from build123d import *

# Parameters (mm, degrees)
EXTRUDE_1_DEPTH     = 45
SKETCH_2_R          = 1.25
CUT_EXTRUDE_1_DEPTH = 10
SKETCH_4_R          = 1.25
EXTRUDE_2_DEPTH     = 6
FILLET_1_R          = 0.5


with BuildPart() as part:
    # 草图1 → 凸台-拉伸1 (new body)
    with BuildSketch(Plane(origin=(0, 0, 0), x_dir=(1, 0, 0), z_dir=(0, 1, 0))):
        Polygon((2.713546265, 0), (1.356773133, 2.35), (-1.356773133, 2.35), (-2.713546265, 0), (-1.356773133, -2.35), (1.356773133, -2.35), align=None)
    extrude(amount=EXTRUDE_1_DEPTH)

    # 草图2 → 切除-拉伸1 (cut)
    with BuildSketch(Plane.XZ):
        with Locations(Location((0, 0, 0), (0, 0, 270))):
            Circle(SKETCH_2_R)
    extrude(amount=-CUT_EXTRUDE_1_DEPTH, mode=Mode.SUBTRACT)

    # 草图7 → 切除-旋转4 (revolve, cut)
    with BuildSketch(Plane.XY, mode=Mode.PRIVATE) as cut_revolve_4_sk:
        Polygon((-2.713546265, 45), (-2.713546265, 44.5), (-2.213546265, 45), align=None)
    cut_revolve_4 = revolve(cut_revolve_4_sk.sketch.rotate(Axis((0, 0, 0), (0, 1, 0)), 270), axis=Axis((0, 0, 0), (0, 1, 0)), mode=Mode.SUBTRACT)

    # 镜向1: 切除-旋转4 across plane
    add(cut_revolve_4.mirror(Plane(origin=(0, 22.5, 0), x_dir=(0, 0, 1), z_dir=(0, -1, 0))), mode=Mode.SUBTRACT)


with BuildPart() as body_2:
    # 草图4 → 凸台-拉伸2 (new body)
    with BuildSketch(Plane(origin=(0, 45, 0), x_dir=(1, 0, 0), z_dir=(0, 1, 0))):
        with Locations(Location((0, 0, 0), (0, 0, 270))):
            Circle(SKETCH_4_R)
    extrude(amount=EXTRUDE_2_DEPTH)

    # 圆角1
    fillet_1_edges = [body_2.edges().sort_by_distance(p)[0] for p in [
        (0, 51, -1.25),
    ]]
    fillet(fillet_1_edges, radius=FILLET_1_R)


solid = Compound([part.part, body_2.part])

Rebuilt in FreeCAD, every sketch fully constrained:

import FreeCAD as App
import Part
import Sketcher
from FreeCAD import Vector
Q = App.Units.Quantity


def edges_at(feature, points):
    """Names of the edges that pass closest to the given points."""
    edges = feature.Shape.Edges
    near = lambda p: min(range(len(edges)), key=lambda i: edges[i].distToShape(Part.Vertex(*p))[0])
    return sorted({f"Edge{near(p) + 1}" for p in points})


def add_polygon(sketch, points):
    """Adds a closed chain of lines whose ends are joined by coincident constraints."""
    first, n = sketch.GeometryCount, len(points)
    for a, b in zip(points, points[1:] + points[:1]):
        sketch.addGeometry(Part.LineSegment(App.Vector(*a, 0), App.Vector(*b, 0)), False)
    for i in range(n):
        sketch.addConstraint(Sketcher.Constraint("Coincident", first + i, 2, first + (i + 1) % n, 1))

doc = App.newDocument("Part")
body = doc.addObject("PartDesign::Body", "Body")

sketch1 = doc.addObject("Sketcher::SketchObject", "Sketch")
body.addObject(sketch1)
sketch1.AttachmentSupport = (doc.XZ_Plane, [""])
sketch1.MapMode = "FlatFace"
add_polygon(sketch1, [(2.713546, 0), (1.356773, -2.35), (-1.356773, -2.35), (-2.713546, 0), (-1.356773, 2.35), (1.356773, 2.35)])
sketch1.addConstraint([
    Sketcher.Constraint("Horizontal", 1),
    Sketcher.Constraint("Horizontal", 4),
    Sketcher.Constraint("Symmetric", 0, 2, 3, 2, -1, 1),
    Sketcher.Constraint("Symmetric", 2, 2, 5, 2, -1, 1),
    Sketcher.Constraint("PointOnObject", 2, 2, -1),
    Sketcher.Constraint("Parallel", 2, 5),
    Sketcher.Constraint("Vertical", 1, 2, 3, 2),
    Sketcher.Constraint("Angle", 0, Q("-120 deg")),
    Sketcher.Constraint("DistanceY", 1, 2, 3, 2, 4.7),
    Sketcher.Constraint("DistanceX", 1, 2, 1, 1, 2.713546),
])
pad1 = doc.addObject("PartDesign::Pad", "Pad")
body.addObject(pad1)
pad1.Profile = sketch1
pad1.Length = 45
pad1.Reversed = True

sketch2 = doc.addObject("Sketcher::SketchObject", "Sketch001")
body.addObject(sketch2)
sketch2.AttachmentSupport = (doc.XZ_Plane, [""])
sketch2.MapMode = "FlatFace"
sketch2.addGeometry(Part.Circle(Vector(0, 0, 0), Vector(0, 0, 1), 1.25), False)
sketch2.addConstraint([
    Sketcher.Constraint("Coincident", 0, 3, -1, 1),
    Sketcher.Constraint("Diameter", 0, 2.5),
])
pocket1 = doc.addObject("PartDesign::Pocket", "Pocket")
body.addObject(pocket1)
pocket1.Profile = sketch2
pocket1.Length = 10

sketch3 = doc.addObject("Sketcher::SketchObject", "Sketch002")
body.addObject(sketch3)
sketch3.AttachmentSupport = (doc.XY_Plane, [""])
sketch3.MapMode = "FlatFace"
add_polygon(sketch3, [(-2.713546, 45), (-2.713546, 44.5), (-2.213546, 45)])
sketch3.addConstraint([
    Sketcher.Constraint("Vertical", 0),
    Sketcher.Constraint("Horizontal", 2),
    Sketcher.Constraint("Equal", 2, 0),
    Sketcher.Constraint("DistanceX", 2, 2, 2, 1, 0.5),
    Sketcher.Constraint("DistanceY", -1, 1, 1, 2, 45.0),
    Sketcher.Constraint("DistanceX", 0, 2, -1, 1, 2.713546),
])
groove = doc.addObject("PartDesign::Groove", "Groove")
body.addObject(groove)
groove.Profile = sketch3
groove.ReferenceAxis = (sketch3, ["V_Axis"])
groove.Angle = 360
doc.recompute()

datumplane = doc.addObject("PartDesign::Plane", "DatumPlane")
body.addObject(datumplane)
datumplane.AttachmentSupport = (doc.XZ_Plane, [""])
datumplane.MapMode = "FlatFace"
datumplane.AttachmentOffset = App.Placement(Vector(0, 0, -22.5), App.Rotation())
mirrored = doc.addObject("PartDesign::Mirrored", "Mirrored")
body.addObject(mirrored)
mirrored.Originals = [groove]
mirrored.MirrorPlane = (datumplane, [""])
body.Tip = mirrored
body2 = doc.addObject("PartDesign::Body", "Body001")

sketch4 = doc.addObject("Sketcher::SketchObject", "Sketch003")
body2.addObject(sketch4)
sketch4.AttachmentSupport = (doc.getObject("XZ_Plane001"), [""])
sketch4.MapMode = "FlatFace"
sketch4.AttachmentOffset = App.Placement(Vector(0, 0, -45), App.Rotation())
sketch4.addGeometry(Part.Circle(Vector(0, 0, 0), Vector(0, 0, 1), 1.25), False)
sketch4.addConstraint([
    Sketcher.Constraint("Coincident", 0, 3, -1, 1),
    Sketcher.Constraint("Diameter", 0, 2.5),
])
pad2 = doc.addObject("PartDesign::Pad", "Pad001")
body2.addObject(pad2)
pad2.Profile = sketch4
pad2.Length = 6
pad2.Reversed = True
doc.recompute()

fillet = doc.addObject("PartDesign::Fillet", "Fillet")
body2.addObject(fillet)
fillet.Base = (pad2, edges_at(pad2, [(0, 51, -1.25)]))
fillet.Radius = 0.5

doc.recompute()
